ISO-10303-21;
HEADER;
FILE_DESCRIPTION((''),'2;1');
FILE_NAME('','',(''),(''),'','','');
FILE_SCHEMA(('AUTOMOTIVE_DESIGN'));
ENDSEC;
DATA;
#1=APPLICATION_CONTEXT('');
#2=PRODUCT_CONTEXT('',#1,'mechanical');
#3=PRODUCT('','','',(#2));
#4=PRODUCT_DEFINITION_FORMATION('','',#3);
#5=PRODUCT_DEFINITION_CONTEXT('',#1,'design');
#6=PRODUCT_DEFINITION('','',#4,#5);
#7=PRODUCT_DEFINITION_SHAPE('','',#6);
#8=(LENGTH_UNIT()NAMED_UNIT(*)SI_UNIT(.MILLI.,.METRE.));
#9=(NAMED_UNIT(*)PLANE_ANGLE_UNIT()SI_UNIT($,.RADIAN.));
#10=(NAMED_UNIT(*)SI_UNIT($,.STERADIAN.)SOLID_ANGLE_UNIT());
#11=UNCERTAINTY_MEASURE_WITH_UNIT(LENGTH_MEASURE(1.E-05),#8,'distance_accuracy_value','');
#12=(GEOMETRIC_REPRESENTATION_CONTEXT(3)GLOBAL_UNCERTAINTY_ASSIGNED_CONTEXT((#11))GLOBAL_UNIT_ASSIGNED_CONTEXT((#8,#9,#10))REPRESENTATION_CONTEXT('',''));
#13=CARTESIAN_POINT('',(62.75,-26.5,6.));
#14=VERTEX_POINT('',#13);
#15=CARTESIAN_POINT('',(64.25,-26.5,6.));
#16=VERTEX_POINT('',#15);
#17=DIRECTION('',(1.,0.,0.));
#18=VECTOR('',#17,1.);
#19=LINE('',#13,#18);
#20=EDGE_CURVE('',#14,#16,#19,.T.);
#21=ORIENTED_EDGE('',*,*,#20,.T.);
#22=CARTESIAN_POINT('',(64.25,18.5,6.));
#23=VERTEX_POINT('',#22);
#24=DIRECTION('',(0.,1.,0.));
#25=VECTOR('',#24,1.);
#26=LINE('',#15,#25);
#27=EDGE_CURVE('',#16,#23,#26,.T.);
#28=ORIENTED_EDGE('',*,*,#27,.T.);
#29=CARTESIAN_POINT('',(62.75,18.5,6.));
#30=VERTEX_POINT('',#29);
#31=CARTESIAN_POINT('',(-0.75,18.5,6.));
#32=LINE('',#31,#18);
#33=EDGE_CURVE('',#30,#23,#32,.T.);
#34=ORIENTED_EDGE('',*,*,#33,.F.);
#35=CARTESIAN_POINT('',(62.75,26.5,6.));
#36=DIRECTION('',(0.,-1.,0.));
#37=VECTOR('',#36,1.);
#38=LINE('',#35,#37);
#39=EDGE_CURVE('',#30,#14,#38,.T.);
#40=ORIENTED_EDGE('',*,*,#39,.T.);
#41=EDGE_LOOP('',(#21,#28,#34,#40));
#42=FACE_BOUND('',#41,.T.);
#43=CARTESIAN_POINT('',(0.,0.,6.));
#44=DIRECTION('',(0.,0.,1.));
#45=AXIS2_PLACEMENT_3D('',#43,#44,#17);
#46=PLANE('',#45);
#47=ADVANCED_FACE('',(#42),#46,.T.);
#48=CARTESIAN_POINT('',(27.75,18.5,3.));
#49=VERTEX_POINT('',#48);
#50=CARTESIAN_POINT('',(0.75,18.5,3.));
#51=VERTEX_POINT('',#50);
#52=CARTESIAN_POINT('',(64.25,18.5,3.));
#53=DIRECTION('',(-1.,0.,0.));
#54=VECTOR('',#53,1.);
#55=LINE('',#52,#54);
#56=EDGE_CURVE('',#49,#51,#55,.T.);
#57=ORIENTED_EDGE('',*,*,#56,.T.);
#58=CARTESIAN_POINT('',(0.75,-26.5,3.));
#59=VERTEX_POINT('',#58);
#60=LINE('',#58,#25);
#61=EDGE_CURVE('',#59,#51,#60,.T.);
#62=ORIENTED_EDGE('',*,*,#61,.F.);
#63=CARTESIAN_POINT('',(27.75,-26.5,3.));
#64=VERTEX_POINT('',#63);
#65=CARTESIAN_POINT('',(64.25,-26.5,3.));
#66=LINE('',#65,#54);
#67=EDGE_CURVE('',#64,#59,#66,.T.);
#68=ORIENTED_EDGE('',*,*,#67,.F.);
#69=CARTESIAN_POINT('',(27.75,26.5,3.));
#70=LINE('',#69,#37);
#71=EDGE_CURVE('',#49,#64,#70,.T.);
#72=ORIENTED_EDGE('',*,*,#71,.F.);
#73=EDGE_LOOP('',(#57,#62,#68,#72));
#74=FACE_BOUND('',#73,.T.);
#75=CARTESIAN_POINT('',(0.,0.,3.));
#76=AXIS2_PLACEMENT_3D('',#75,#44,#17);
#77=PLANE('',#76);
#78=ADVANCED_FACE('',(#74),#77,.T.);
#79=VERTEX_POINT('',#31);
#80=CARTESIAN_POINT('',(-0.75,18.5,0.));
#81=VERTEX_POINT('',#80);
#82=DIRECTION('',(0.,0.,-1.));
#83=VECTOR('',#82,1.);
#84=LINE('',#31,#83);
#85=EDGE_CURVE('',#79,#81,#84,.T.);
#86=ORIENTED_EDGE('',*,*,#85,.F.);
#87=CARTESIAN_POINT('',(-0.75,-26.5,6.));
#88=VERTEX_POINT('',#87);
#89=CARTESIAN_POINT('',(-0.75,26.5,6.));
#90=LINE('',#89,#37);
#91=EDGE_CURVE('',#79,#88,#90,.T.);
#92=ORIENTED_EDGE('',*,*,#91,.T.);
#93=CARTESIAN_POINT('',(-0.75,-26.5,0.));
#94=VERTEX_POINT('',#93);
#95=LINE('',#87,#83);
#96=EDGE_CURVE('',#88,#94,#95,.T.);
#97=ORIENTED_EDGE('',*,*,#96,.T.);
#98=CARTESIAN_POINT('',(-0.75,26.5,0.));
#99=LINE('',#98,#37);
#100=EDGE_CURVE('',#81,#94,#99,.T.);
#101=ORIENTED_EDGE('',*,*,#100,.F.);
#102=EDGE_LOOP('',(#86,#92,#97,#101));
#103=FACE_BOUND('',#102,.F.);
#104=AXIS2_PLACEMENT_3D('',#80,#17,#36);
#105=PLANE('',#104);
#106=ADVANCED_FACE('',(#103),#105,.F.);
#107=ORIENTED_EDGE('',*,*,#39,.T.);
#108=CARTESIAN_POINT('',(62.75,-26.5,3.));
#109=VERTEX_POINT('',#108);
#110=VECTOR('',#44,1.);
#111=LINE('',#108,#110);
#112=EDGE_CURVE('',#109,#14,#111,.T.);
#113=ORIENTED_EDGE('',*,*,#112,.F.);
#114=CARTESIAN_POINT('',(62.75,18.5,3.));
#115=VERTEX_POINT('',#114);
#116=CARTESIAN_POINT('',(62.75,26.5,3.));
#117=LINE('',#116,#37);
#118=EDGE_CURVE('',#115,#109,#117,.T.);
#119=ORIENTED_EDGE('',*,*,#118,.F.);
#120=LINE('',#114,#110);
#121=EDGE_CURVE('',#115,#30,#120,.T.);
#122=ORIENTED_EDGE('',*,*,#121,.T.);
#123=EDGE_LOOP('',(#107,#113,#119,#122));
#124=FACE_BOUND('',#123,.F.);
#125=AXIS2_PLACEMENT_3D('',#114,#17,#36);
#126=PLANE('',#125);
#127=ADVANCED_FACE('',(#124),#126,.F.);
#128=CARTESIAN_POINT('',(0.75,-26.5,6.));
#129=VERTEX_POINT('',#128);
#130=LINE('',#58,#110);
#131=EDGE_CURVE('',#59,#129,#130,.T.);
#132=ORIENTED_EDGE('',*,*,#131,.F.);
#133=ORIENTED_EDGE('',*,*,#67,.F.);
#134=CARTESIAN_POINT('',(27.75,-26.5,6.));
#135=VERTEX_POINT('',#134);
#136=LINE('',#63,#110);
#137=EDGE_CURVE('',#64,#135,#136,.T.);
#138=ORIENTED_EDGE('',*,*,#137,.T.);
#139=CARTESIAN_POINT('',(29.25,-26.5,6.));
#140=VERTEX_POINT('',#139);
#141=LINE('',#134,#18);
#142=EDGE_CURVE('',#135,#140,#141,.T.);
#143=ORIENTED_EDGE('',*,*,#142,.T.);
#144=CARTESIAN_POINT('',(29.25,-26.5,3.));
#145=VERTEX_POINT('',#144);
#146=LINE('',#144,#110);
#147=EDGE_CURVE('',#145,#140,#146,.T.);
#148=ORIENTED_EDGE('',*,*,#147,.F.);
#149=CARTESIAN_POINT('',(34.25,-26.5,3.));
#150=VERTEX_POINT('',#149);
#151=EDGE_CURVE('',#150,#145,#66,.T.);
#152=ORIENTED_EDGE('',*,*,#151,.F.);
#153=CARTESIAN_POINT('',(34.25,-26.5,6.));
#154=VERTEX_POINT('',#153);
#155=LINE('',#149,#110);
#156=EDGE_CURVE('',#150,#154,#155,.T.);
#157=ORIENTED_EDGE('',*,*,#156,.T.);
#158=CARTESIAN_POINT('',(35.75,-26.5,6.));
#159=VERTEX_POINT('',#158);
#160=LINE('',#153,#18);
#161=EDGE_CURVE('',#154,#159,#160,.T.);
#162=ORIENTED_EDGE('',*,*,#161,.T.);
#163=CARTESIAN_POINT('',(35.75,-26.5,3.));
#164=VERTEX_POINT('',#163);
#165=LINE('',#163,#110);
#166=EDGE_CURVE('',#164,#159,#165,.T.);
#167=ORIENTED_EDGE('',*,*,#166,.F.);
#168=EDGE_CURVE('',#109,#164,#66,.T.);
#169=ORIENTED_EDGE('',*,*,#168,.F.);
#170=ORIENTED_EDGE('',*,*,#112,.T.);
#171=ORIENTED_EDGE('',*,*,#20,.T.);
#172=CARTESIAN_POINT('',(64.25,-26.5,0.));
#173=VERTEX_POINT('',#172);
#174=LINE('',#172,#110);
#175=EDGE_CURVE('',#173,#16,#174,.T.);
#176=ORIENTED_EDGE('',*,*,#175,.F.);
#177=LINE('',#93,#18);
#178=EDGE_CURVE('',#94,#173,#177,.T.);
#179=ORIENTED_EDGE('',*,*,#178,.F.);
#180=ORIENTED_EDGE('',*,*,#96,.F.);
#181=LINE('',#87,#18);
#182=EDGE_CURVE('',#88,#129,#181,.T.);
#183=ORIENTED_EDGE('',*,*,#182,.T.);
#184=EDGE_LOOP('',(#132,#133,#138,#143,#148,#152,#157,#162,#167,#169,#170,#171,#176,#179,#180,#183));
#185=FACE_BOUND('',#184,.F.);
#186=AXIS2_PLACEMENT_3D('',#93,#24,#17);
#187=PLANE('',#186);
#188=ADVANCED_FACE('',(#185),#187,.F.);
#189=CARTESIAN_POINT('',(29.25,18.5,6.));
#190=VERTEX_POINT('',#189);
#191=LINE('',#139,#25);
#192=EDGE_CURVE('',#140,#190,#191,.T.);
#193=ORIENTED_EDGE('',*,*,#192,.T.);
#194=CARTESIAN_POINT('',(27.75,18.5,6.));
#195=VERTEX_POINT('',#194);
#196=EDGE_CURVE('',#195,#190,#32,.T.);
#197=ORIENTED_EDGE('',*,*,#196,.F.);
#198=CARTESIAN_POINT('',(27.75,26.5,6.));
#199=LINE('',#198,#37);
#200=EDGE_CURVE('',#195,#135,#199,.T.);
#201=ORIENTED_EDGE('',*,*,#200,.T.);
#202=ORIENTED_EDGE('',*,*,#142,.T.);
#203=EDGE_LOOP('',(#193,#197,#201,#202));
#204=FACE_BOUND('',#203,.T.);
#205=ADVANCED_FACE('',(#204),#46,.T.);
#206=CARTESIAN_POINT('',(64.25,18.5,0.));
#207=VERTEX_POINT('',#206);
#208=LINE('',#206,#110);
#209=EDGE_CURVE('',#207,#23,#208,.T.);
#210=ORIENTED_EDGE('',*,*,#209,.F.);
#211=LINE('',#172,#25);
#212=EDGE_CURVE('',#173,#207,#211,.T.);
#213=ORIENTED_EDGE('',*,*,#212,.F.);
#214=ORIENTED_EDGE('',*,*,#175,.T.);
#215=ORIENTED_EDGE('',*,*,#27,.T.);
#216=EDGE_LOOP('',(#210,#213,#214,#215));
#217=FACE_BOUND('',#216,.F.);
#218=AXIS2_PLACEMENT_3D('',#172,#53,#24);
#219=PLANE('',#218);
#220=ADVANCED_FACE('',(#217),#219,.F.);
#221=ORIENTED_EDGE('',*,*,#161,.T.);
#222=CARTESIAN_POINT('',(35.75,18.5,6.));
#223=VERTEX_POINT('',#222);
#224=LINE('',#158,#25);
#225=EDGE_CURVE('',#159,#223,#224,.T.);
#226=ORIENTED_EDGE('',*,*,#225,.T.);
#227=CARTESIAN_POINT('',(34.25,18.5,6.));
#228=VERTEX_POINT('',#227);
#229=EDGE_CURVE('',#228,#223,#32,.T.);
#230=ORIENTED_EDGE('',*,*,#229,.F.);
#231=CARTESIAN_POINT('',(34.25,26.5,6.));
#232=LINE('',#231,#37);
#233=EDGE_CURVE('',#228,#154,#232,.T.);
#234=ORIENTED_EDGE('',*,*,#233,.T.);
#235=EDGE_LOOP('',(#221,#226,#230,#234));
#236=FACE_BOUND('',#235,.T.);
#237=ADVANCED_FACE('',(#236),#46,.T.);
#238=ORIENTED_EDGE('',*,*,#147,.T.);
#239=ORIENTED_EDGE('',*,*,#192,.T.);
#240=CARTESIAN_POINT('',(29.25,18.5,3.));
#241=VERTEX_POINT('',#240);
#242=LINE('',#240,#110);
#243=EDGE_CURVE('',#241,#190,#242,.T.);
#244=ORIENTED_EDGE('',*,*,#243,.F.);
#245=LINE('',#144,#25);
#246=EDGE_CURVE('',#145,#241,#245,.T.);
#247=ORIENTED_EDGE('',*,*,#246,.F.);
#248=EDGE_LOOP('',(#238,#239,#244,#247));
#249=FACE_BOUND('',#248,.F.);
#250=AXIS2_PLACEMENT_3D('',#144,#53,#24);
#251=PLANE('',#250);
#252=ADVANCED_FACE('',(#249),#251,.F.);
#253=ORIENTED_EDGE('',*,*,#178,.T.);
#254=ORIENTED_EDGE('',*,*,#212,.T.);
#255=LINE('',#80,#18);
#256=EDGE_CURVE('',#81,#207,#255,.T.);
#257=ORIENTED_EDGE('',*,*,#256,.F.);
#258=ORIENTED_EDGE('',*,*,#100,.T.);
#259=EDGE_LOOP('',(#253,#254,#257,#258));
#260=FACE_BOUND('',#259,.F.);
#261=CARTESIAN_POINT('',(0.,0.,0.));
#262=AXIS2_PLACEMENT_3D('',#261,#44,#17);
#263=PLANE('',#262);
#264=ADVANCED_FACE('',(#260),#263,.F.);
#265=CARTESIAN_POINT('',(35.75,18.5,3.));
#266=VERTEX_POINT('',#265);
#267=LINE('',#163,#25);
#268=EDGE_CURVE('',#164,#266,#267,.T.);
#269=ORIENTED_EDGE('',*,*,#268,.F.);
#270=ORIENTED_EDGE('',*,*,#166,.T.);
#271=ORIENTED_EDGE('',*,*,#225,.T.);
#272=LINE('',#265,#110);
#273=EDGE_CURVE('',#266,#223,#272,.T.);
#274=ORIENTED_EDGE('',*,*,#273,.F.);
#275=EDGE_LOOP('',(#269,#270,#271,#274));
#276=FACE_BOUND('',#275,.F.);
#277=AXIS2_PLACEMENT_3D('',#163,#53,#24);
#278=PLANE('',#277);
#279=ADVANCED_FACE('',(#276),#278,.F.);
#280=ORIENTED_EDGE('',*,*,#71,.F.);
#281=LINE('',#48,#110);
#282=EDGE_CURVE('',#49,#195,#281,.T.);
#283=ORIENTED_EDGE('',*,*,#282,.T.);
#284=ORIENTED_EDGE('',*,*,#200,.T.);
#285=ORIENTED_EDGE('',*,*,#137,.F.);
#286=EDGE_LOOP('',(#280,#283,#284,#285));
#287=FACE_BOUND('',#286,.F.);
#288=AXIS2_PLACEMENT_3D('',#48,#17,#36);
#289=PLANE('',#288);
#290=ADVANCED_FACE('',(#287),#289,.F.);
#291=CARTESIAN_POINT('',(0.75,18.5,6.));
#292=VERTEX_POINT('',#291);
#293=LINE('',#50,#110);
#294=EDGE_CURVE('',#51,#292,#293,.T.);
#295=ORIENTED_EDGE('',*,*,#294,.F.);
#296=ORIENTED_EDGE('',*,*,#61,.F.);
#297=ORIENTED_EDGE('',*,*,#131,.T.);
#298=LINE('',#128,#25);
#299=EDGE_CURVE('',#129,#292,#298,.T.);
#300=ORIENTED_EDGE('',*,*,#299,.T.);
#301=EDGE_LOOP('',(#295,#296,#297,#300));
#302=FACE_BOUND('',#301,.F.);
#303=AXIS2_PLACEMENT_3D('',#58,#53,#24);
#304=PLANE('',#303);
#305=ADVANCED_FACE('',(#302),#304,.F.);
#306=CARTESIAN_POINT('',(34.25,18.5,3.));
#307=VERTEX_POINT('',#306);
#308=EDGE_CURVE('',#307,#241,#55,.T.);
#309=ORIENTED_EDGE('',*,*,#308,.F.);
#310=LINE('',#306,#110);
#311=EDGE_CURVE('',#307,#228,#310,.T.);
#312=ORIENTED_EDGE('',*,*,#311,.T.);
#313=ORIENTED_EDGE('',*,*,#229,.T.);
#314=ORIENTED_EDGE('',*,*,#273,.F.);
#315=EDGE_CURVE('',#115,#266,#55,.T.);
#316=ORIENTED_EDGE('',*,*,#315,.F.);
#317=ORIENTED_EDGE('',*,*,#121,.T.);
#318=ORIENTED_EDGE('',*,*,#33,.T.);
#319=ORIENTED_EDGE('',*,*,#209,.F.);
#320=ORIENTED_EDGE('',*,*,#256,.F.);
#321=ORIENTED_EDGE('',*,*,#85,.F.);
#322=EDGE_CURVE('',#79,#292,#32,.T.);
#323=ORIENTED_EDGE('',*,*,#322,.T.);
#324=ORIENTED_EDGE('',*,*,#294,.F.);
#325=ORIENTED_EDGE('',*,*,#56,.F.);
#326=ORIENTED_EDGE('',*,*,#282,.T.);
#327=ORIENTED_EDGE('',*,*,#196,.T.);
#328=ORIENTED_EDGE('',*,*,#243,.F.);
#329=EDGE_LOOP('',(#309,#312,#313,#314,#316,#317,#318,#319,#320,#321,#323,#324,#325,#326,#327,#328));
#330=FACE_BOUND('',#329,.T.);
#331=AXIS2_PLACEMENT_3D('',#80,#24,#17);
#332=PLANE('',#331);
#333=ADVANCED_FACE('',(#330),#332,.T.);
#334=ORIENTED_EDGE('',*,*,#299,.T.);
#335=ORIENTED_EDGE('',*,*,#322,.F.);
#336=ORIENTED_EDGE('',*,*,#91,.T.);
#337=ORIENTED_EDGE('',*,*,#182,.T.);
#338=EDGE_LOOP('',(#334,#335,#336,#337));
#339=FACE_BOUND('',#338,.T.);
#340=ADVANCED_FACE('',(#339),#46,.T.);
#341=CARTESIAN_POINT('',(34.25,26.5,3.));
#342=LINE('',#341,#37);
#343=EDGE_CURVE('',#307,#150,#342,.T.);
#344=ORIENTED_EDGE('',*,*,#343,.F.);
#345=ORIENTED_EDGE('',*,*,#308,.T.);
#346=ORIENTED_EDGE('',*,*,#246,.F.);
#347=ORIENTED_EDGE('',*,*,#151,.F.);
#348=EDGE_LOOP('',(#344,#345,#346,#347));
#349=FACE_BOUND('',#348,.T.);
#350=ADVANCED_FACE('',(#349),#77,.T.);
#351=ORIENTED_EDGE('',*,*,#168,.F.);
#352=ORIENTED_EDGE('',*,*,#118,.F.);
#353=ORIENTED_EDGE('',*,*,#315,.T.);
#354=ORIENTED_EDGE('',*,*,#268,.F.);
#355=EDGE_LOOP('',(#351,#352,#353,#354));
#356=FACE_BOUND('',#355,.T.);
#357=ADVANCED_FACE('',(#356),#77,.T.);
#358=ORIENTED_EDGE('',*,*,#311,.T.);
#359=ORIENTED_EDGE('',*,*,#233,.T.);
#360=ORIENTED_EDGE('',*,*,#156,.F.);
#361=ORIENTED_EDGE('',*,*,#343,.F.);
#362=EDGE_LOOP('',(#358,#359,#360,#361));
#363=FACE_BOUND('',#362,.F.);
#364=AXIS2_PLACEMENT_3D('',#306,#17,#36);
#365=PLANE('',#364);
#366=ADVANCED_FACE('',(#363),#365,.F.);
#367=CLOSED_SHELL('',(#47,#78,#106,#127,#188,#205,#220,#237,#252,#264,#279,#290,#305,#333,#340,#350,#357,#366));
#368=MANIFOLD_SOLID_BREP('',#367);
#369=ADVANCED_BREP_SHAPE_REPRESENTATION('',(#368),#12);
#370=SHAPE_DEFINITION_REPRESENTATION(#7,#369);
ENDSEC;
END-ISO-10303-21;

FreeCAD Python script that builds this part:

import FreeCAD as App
import Part
import Sketcher
Q = App.Units.Quantity

doc = App.newDocument("Part")
body = doc.addObject("PartDesign::Body", "Body")

# Sketch on XY plane
sketch1 = body.newObject("Sketcher::SketchObject", "Sketch")
sketch1.AttachmentSupport = (doc.getObject("XY_Plane"), [""])
sketch1.MapMode = "FlatFace"
sketch1.addGeometry([
    Part.LineSegment(App.Vector(-0.75, -26.5, 0), App.Vector(64.25, -26.5, 0)),
    Part.LineSegment(App.Vector(64.25, -26.5, 0), App.Vector(64.25, 18.5, 0)),
    Part.LineSegment(App.Vector(64.25, 18.5, 0), App.Vector(-0.75, 18.5, 0)),
    Part.LineSegment(App.Vector(-0.75, 18.5, 0), App.Vector(-0.75, -26.5, 0)),
], False)
sketch1.addConstraint([
    Sketcher.Constraint("Coincident", 0, 2, 1, 1),
    Sketcher.Constraint("Coincident", 1, 2, 2, 1),
    Sketcher.Constraint("Coincident", 2, 2, 3, 1),
    Sketcher.Constraint("Coincident", 3, 2, 0, 1),
    Sketcher.Constraint("Horizontal", 0),
    Sketcher.Constraint("Vertical", 1),
    Sketcher.Constraint("Horizontal", 2),
    Sketcher.Constraint("Vertical", 3),
    Sketcher.Constraint("DistanceY", 1, 1, 1, 2, Q("45 mm")),
    Sketcher.Constraint("DistanceX", 0, 1, 0, 2, Q("65 mm")),
    Sketcher.Constraint("DistanceY", 0, 2, -1, 1, Q("26.5 mm")),
    Sketcher.Constraint("DistanceX", -1, 1, 0, 2, Q("64.25 mm")),
])
pad1 = body.newObject("PartDesign::Pad", "Pad")
pad1.Profile = sketch1
pad1.Length = 3

# Sketch on XY plane
sketch2 = body.newObject("Sketcher::SketchObject", "Sketch001")
sketch2.AttachmentSupport = (doc.getObject("XY_Plane"), [""])
sketch2.MapMode = "FlatFace"
sketch2.AttachmentOffset = App.Placement(App.Vector(0, 0, 3), App.Rotation())
sketch2.addGeometry([
    Part.LineSegment(App.Vector(-0.75, -26.5, 0), App.Vector(0.75, -26.5, 0)),  # 0
    Part.LineSegment(App.Vector(0.75, -26.5, 0), App.Vector(0.75, 18.5, 0)),  # 1
    Part.LineSegment(App.Vector(0.75, 18.5, 0), App.Vector(-0.75, 18.5, 0)),  # 2
    Part.LineSegment(App.Vector(-0.75, 18.5, 0), App.Vector(-0.75, -26.5, 0)),  # 3
    Part.LineSegment(App.Vector(27.75, 18.5, 0), App.Vector(27.75, -26.5, 0)),  # 4
    Part.LineSegment(App.Vector(27.75, -26.5, 0), App.Vector(29.25, -26.5, 0)),  # 5
    Part.LineSegment(App.Vector(29.25, -26.5, 0), App.Vector(29.25, 18.5, 0)),  # 6
    Part.LineSegment(App.Vector(29.25, 18.5, 0), App.Vector(27.75, 18.5, 0)),  # 7
    Part.LineSegment(App.Vector(34.25, 18.5, 0), App.Vector(34.25, -26.5, 0)),  # 8
    Part.LineSegment(App.Vector(34.25, -26.5, 0), App.Vector(35.75, -26.5, 0)),  # 9
    Part.LineSegment(App.Vector(35.75, -26.5, 0), App.Vector(35.75, 18.5, 0)),  # 10
    Part.LineSegment(App.Vector(35.75, 18.5, 0), App.Vector(34.25, 18.5, 0)),  # 11
    Part.LineSegment(App.Vector(62.75, 18.5, 0), App.Vector(62.75, -26.5, 0)),  # 12
    Part.LineSegment(App.Vector(62.75, -26.5, 0), App.Vector(64.25, -26.5, 0)),  # 13
    Part.LineSegment(App.Vector(64.25, -26.5, 0), App.Vector(64.25, 18.5, 0)),  # 14
    Part.LineSegment(App.Vector(64.25, 18.5, 0), App.Vector(62.75, 18.5, 0)),  # 15
], False)
sketch2.addConstraint([
    Sketcher.Constraint("Coincident", 0, 2, 1, 1),
    Sketcher.Constraint("Coincident", 1, 2, 2, 1),
    Sketcher.Constraint("Coincident", 2, 2, 3, 1),
    Sketcher.Constraint("Coincident", 3, 2, 0, 1),
    Sketcher.Constraint("Coincident", 4, 2, 5, 1),
    Sketcher.Constraint("Coincident", 5, 2, 6, 1),
    Sketcher.Constraint("Coincident", 6, 2, 7, 1),
    Sketcher.Constraint("Coincident", 7, 2, 4, 1),
    Sketcher.Constraint("Coincident", 8, 2, 9, 1),
    Sketcher.Constraint("Coincident", 9, 2, 10, 1),
    Sketcher.Constraint("Coincident", 10, 2, 11, 1),
    Sketcher.Constraint("Coincident", 11, 2, 8, 1),
    Sketcher.Constraint("Coincident", 12, 2, 13, 1),
    Sketcher.Constraint("Coincident", 13, 2, 14, 1),
    Sketcher.Constraint("Coincident", 14, 2, 15, 1),
    Sketcher.Constraint("Coincident", 15, 2, 12, 1),
    Sketcher.Constraint("Horizontal", 0),
    Sketcher.Constraint("Vertical", 1),
    Sketcher.Constraint("Horizontal", 2),
    Sketcher.Constraint("Vertical", 3),
    Sketcher.Constraint("Vertical", 4),
    Sketcher.Constraint("Horizontal", 5),
    Sketcher.Constraint("Vertical", 6),
    Sketcher.Constraint("Horizontal", 7),
    Sketcher.Constraint("Vertical", 8),
    Sketcher.Constraint("Horizontal", 9),
    Sketcher.Constraint("Vertical", 10),
    Sketcher.Constraint("Horizontal", 11),
    Sketcher.Constraint("Vertical", 12),
    Sketcher.Constraint("Horizontal", 13),
    Sketcher.Constraint("Vertical", 14),
    Sketcher.Constraint("Horizontal", 15),
    Sketcher.Constraint("Horizontal", 3, 2, 4, 2),
    Sketcher.Constraint("Horizontal", 2, 2, 6, 2),
    Sketcher.Constraint("Horizontal", 5, 2, 8, 2),
    Sketcher.Constraint("Horizontal", 7, 2, 10, 2),
    Sketcher.Constraint("Horizontal", 9, 2, 12, 2),
    Sketcher.Constraint("Horizontal", 11, 2, 14, 2),
    Sketcher.Constraint("Equal", 2, 5),
    Sketcher.Constraint("Equal", 7, 9),
    Sketcher.Constraint("Equal", 11, 13),
    Sketcher.Constraint("DistanceY", 1, 1, 1, 2, Q("45 mm")),
    Sketcher.Constraint("DistanceX", 0, 1, 0, 2, Q("1.5 mm")),
    Sketcher.Constraint("DistanceX", 0, 2, 4, 2, Q("27 mm")),
    Sketcher.Constraint("DistanceX", 5, 2, 8, 2, Q("5 mm")),
    Sketcher.Constraint("DistanceX", 9, 2, 12, 2, Q("27 mm")),
    Sketcher.Constraint("DistanceY", 0, 2, -1, 1, Q("26.5 mm")),
    Sketcher.Constraint("DistanceX", -1, 1, 0, 2, Q("0.75 mm")),
])
pad2 = body.newObject("PartDesign::Pad", "Pad001")
pad2.Profile = sketch2
pad2.Length = 3

doc.recompute()
